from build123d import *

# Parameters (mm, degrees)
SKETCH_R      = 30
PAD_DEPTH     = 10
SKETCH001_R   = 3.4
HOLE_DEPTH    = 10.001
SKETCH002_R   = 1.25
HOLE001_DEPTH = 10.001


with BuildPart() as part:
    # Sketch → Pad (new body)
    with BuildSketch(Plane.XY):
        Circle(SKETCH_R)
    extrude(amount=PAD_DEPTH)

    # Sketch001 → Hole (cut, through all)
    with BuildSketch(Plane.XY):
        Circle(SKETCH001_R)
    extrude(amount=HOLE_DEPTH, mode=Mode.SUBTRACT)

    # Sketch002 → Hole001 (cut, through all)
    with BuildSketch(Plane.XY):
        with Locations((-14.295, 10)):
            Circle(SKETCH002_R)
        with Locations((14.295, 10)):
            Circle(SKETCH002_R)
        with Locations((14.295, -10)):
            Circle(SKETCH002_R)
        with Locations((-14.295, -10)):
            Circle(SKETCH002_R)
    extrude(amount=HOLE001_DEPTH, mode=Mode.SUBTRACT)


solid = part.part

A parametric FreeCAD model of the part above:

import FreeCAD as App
import Part
import Sketcher
from FreeCAD import Vector

doc = App.newDocument("Part")
body = doc.addObject("PartDesign::Body", "Body")

# Sketch on XY plane
sketch1 = body.newObject("Sketcher::SketchObject", "Sketch")
sketch1.AttachmentSupport = (doc.getObject("XY_Plane"), [""])
sketch1.MapMode = "FlatFace"
sketch1.addGeometry(Part.Circle(Vector(0, 0, 0), Vector(0, 0, 1), 30), False)
sketch1.addConstraint([
    Sketcher.Constraint("Coincident", 0, 3, -1, 1),
    Sketcher.Constraint("Diameter", 0, 60.0),
])
pad1 = body.newObject("PartDesign::Pad", "Pad")
pad1.Profile = sketch1
pad1.Length = 10

# Sketch on XY plane
sketch2 = body.newObject("Sketcher::SketchObject", "Sketch001")
sketch2.AttachmentSupport = (doc.getObject("XY_Plane"), [""])
sketch2.MapMode = "FlatFace"
sketch2.addGeometry(Part.Circle(Vector(0, 0, 0), Vector(0, 0, 1), 3.4), False)
sketch2.addConstraint([
    Sketcher.Constraint("Coincident", 0, 3, -1, 1),
    Sketcher.Constraint("Diameter", 0, 6.8),
])
pocket1 = body.newObject("PartDesign::Pocket", "Pocket")
pocket1.Profile = sketch2
pocket1.Type = "ThroughAll"
pocket1.Reversed = True

# Sketch on XY plane
sketch3 = body.newObject("Sketcher::SketchObject", "Sketch002")
sketch3.AttachmentSupport = (doc.getObject("XY_Plane"), [""])
sketch3.MapMode = "FlatFace"
sketch3.addGeometry([
    Part.Circle(Vector(-14.3, 10, 0), Vector(0, 0, 1), 1.2),
    Part.Circle(Vector(14.3, 10, 0), Vector(0, 0, 1), 1.2),
    Part.Circle(Vector(14.3, -10, 0), Vector(0, 0, 1), 1.2),
    Part.Circle(Vector(-14.3, -10, 0), Vector(0, 0, 1), 1.2),
], False)
sketch3.addConstraint([
    Sketcher.Constraint("Equal", 0, 1),
    Sketcher.Constraint("Equal", 1, 2),
    Sketcher.Constraint("Equal", 2, 3),
    Sketcher.Constraint("Symmetric", 0, 3, 2, 3, -1, 1),
    Sketcher.Constraint("Symmetric", 1, 3, 3, 3, -1, 1),
    Sketcher.Constraint("Symmetric", 0, 3, 1, 3, -2),
    Sketcher.Constraint("Diameter", 0, 2.5),
    Sketcher.Constraint("DistanceY", -1, 1, 0, 3, 10.0),
    Sketcher.Constraint("DistanceX", 0, 3, 1, 3, 28.59),
])
pocket2 = body.newObject("PartDesign::Pocket", "Pocket001")
pocket2.Profile = sketch3
pocket2.Type = "ThroughAll"
pocket2.Reversed = True

doc.recompute()
